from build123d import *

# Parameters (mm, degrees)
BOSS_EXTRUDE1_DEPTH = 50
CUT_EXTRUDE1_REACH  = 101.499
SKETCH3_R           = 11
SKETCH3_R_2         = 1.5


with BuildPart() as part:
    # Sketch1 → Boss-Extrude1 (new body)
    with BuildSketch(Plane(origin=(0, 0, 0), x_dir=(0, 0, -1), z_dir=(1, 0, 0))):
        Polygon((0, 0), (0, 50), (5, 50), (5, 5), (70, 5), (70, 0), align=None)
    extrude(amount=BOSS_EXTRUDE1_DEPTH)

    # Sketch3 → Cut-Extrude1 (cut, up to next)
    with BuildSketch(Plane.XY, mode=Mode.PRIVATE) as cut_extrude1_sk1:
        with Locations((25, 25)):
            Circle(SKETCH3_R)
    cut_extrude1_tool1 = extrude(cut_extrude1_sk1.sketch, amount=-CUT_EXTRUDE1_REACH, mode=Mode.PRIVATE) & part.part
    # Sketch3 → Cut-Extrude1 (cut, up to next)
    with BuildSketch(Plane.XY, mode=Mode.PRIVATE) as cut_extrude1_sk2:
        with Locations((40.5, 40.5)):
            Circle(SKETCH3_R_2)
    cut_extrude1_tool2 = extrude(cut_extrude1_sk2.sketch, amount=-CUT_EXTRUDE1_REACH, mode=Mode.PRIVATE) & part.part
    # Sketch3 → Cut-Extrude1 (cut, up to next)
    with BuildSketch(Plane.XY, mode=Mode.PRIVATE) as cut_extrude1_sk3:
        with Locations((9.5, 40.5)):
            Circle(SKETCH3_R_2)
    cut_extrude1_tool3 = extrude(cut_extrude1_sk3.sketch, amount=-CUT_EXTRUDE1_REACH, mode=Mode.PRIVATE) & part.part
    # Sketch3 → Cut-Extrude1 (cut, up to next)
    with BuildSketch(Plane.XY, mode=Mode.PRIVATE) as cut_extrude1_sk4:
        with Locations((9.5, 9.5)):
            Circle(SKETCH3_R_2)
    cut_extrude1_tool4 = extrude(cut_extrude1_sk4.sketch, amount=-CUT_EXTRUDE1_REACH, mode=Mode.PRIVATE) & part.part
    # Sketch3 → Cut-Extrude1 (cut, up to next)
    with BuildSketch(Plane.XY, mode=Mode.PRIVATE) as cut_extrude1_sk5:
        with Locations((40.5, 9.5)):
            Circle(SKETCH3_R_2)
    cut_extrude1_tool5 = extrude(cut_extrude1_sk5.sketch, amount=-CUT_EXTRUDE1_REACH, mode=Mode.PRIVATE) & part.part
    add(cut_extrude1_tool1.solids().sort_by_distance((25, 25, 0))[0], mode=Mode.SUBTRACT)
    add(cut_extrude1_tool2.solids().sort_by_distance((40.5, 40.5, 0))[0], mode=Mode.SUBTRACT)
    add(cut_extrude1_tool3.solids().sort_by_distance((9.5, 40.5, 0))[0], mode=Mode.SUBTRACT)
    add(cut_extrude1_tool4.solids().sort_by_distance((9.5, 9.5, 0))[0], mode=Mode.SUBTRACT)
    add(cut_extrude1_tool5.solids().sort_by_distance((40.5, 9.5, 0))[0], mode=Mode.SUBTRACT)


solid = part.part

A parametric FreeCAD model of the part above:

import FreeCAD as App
import Part
import Sketcher

doc = App.newDocument("Part")
body = doc.addObject("PartDesign::Body", "Body")

# Sketch on YZ plane
sketch1 = body.newObject("Sketcher::SketchObject", "Sketch")
sketch1.AttachmentSupport = (doc.getObject("YZ_Plane"), [""])
sketch1.MapMode = "FlatFace"
sketch1.addGeometry([
    Part.LineSegment(App.Vector(50, 0, 0), App.Vector(0, 0, 0)),  # 0
    Part.LineSegment(App.Vector(0, 0, 0), App.Vector(0, -70, 0)),  # 1
    Part.LineSegment(App.Vector(0, -70, 0), App.Vector(5, -70, 0)),  # 2
    Part.LineSegment(App.Vector(5, -70, 0), App.Vector(5, -5, 0)),  # 3
    Part.LineSegment(App.Vector(5, -5, 0), App.Vector(50, -5, 0)),  # 4
    Part.LineSegment(App.Vector(50, -5, 0), App.Vector(50, 0, 0)),  # 5
], False)
sketch1.addConstraint([
    Sketcher.Constraint("Coincident", 0, 2, 1, 1),
    Sketcher.Constraint("Coincident", 1, 2, 2, 1),
    Sketcher.Constraint("Coincident", 2, 2, 3, 1),
    Sketcher.Constraint("Coincident", 3, 2, 4, 1),
    Sketcher.Constraint("Coincident", 4, 2, 5, 1),
    Sketcher.Constraint("Coincident", 5, 2, 0, 1),
    Sketcher.Constraint("Horizontal", 0),
    Sketcher.Constraint("Vertical", 1),
    Sketcher.Constraint("Horizontal", 2),
    Sketcher.Constraint("Vertical", 3),
    Sketcher.Constraint("Horizontal", 4),
    Sketcher.Constraint("Vertical", 5),
    Sketcher.Constraint("Coincident", 0, 2, -1, 1),
    Sketcher.Constraint("Equal", 2, 5),
    Sketcher.Constraint("DistanceX", 0, 2, 0, 1, 50.0),
    Sketcher.Constraint("DistanceX", 2, 1, 2, 2, 5.0),
    Sketcher.Constraint("DistanceY", 1, 2, 1, 1, 70.0),
])
pad1 = body.newObject("PartDesign::Pad", "Pad")
pad1.Profile = sketch1
pad1.Length = 50

# Sketch on XY plane
sketch2 = body.newObject("Sketcher::SketchObject", "Sketch001")
sketch2.AttachmentSupport = (doc.getObject("XY_Plane"), [""])
sketch2.MapMode = "FlatFace"
sketch2.addGeometry(Part.Circle(App.Vector(25, 25, 0), App.Vector(0, 0, 1), 11), False)
sketch2.addConstraint([
    Sketcher.Constraint("Diameter", 0, 22.0),
    Sketcher.Constraint("DistanceX", -1, 1, 0, 3, 25.0),
    Sketcher.Constraint("DistanceY", -1, 1, 0, 3, 25.0),
])
pocket1 = body.newObject("PartDesign::Pocket", "Pocket")
pocket1.Profile = sketch2
pocket1.Type = "UpToFirst"

# Sketch on XY plane
sketch3 = body.newObject("Sketcher::SketchObject", "Sketch002")
sketch3.AttachmentSupport = (doc.getObject("XY_Plane"), [""])
sketch3.MapMode = "FlatFace"
sketch3.addGeometry(Part.Circle(App.Vector(40.5, 40.5, 0), App.Vector(0, 0, 1), 1.5), False)
sketch3.addConstraint([
    Sketcher.Constraint("Diameter", 0, 3.0),
    Sketcher.Constraint("DistanceX", -1, 1, 0, 3, 40.5),
    Sketcher.Constraint("DistanceY", -1, 1, 0, 3, 40.5),
])
pocket2 = body.newObject("PartDesign::Pocket", "Pocket001")
pocket2.Profile = sketch3
pocket2.Type = "UpToFirst"

# Sketch on XY plane
sketch4 = body.newObject("Sketcher::SketchObject", "Sketch003")
sketch4.AttachmentSupport = (doc.getObject("XY_Plane"), [""])
sketch4.MapMode = "FlatFace"
sketch4.addGeometry(Part.Circle(App.Vector(9.5, 40.5, 0), App.Vector(0, 0, 1), 1.5), False)
sketch4.addConstraint([
    Sketcher.Constraint("Diameter", 0, 3.0),
    Sketcher.Constraint("DistanceX", -1, 1, 0, 3, 9.5),
    Sketcher.Constraint("DistanceY", -1, 1, 0, 3, 40.5),
])
pocket3 = body.newObject("PartDesign::Pocket", "Pocket002")
pocket3.Profile = sketch4
pocket3.Type = "UpToFirst"

# Sketch on XY plane
sketch5 = body.newObject("Sketcher::SketchObject", "Sketch004")
sketch5.AttachmentSupport = (doc.getObject("XY_Plane"), [""])
sketch5.MapMode = "FlatFace"
sketch5.addGeometry(Part.Circle(App.Vector(9.5, 9.5, 0), App.Vector(0, 0, 1), 1.5), False)
sketch5.addConstraint([
    Sketcher.Constraint("Diameter", 0, 3.0),
    Sketcher.Constraint("DistanceX", -1, 1, 0, 3, 9.5),
    Sketcher.Constraint("DistanceY", -1, 1, 0, 3, 9.5),
])
pocket4 = body.newObject("PartDesign::Pocket", "Pocket003")
pocket4.Profile = sketch5
pocket4.Type = "UpToFirst"

# Sketch on XY plane
sketch6 = body.newObject("Sketcher::SketchObject", "Sketch005")
sketch6.AttachmentSupport = (doc.getObject("XY_Plane"), [""])
sketch6.MapMode = "FlatFace"
sketch6.addGeometry(Part.Circle(App.Vector(40.5, 9.5, 0), App.Vector(0, 0, 1), 1.5), False)
sketch6.addConstraint([
    Sketcher.Constraint("Diameter", 0, 3.0),
    Sketcher.Constraint("DistanceX", -1, 1, 0, 3, 40.5),
    Sketcher.Constraint("DistanceY", -1, 1, 0, 3, 9.5),
])
pocket5 = body.newObject("PartDesign::Pocket", "Pocket004")
pocket5.Profile = sketch6
pocket5.Type = "UpToFirst"

doc.recompute()
